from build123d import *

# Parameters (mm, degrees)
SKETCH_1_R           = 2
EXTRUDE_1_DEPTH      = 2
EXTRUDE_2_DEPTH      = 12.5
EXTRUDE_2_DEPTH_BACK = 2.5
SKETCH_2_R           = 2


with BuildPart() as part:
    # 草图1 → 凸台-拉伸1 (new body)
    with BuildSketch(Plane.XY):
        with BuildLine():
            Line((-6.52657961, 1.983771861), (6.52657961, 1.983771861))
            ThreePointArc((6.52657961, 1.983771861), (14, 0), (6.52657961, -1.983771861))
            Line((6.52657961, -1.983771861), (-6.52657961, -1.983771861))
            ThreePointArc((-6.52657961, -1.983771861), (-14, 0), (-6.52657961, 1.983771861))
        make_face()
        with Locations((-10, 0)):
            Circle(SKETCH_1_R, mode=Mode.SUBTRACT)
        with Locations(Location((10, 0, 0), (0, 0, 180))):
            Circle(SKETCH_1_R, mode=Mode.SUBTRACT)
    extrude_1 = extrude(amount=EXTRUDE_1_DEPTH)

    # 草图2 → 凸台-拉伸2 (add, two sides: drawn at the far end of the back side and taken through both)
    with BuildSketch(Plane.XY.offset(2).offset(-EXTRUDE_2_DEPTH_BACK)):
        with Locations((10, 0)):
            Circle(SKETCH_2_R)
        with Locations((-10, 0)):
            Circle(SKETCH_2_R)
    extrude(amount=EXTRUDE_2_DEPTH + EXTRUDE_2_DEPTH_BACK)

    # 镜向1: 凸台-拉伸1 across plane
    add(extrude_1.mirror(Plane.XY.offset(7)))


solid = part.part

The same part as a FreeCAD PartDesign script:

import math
import FreeCAD as App
import Part
import Sketcher

doc = App.newDocument("Part")
body = doc.addObject("PartDesign::Body", "Body")

# Sketch on XY plane
sketch1 = body.newObject("Sketcher::SketchObject", "Sketch")
sketch1.AttachmentSupport = (doc.getObject("XY_Plane"), [""])
sketch1.MapMode = "FlatFace"
sketch1.addGeometry(Part.LineSegment(App.Vector(6.5, 2, 0), App.Vector(-6.5, 2, 0)), False)
sketch1.addGeometry(Part.ArcOfCircle(Part.Circle(App.Vector(-10, 0, 0), App.Vector(0, 0, 1), 4), math.radians(30), math.radians(330)), False)
sketch1.addGeometry(Part.LineSegment(App.Vector(-6.5, -2, 0), App.Vector(6.5, -2, 0)), False)
sketch1.addGeometry(Part.ArcOfCircle(Part.Circle(App.Vector(10, 0, 0), App.Vector(0, 0, 1), 4), math.radians(-150), math.radians(150)), False)
sketch1.addGeometry(Part.Circle(App.Vector(10, 0, 0), App.Vector(0, 0, 1), 2), False)
sketch1.addGeometry(Part.Circle(App.Vector(-10, 0, 0), App.Vector(0, 0, 1), 2), False)
sketch1.addConstraint(Sketcher.Constraint("Coincident", 0, 2, 1, 1))
sketch1.addConstraint(Sketcher.Constraint("Coincident", 1, 2, 2, 1))
sketch1.addConstraint(Sketcher.Constraint("Coincident", 2, 2, 3, 1))
sketch1.addConstraint(Sketcher.Constraint("Coincident", 3, 2, 0, 1))
sketch1.addConstraint(Sketcher.Constraint("Horizontal", 0))
sketch1.addConstraint(Sketcher.Constraint("Horizontal", 2))
sketch1.addConstraint(Sketcher.Constraint("Coincident", 4, 3, 3, 3))
sketch1.addConstraint(Sketcher.Constraint("Coincident", 5, 3, 1, 3))
sketch1.addConstraint(Sketcher.Constraint("Equal", 1, 3))
sketch1.addConstraint(Sketcher.Constraint("Equal", 4, 5))
sketch1.addConstraint(Sketcher.Constraint("Symmetric", 1, 3, 3, 3, -1, 1))
sketch1.addConstraint(Sketcher.Constraint("Symmetric", 0, 2, 1, 2, -1))
sketch1.addConstraint(Sketcher.Constraint("Diameter", 4, 4.0))
sketch1.addConstraint(Sketcher.Constraint("Radius", 1, 4.0))
sketch1.addConstraint(Sketcher.Constraint("DistanceX", 1, 3, -1, 1, 10.0))
sketch1.addConstraint(Sketcher.Constraint("DistanceX", 0, 2, 0, 1, 13.053159))
pad1 = body.newObject("PartDesign::Pad", "Pad")
pad1.Profile = sketch1
pad1.Length = 2

# Sketch on XY plane
sketch2 = body.newObject("Sketcher::SketchObject", "Sketch001")
sketch2.AttachmentSupport = (doc.getObject("XY_Plane"), [""])
sketch2.MapMode = "FlatFace"
sketch2.AttachmentOffset = App.Placement(App.Vector(0, 0, 2), App.Rotation())
sketch2.addGeometry(Part.Circle(App.Vector(10, 0, 0), App.Vector(0, 0, 1), 2), False)
sketch2.addGeometry(Part.Circle(App.Vector(-10, 0, 0), App.Vector(0, 0, 1), 2), False)
sketch2.addConstraint(Sketcher.Constraint("Equal", 0, 1))
sketch2.addConstraint(Sketcher.Constraint("Symmetric", 0, 3, 1, 3, -1, 1))
sketch2.addConstraint(Sketcher.Constraint("PointOnObject", 0, 3, -1))
sketch2.addConstraint(Sketcher.Constraint("Diameter", 0, 4.0))
sketch2.addConstraint(Sketcher.Constraint("DistanceX", -1, 1, 0, 3, 10.0))
pad2 = body.newObject("PartDesign::Pad", "Pad001")
pad2.Profile = sketch2
pad2.Type = "TwoLengths"
pad2.Length = 12.5
pad2.Length2 = 2.5
doc.recompute()

datumplane = body.newObject("PartDesign::Plane", "DatumPlane")
datumplane.AttachmentSupport = (doc.getObject("XY_Plane"), [""])
datumplane.MapMode = "FlatFace"
datumplane.AttachmentOffset = App.Placement(App.Vector(0, 0, 7), App.Rotation())
mirrored = body.newObject("PartDesign::Mirrored", "Mirrored")
mirrored.Originals = [pad1]
mirrored.MirrorPlane = (datumplane, [""])
body.Tip = mirrored

doc.recompute()
